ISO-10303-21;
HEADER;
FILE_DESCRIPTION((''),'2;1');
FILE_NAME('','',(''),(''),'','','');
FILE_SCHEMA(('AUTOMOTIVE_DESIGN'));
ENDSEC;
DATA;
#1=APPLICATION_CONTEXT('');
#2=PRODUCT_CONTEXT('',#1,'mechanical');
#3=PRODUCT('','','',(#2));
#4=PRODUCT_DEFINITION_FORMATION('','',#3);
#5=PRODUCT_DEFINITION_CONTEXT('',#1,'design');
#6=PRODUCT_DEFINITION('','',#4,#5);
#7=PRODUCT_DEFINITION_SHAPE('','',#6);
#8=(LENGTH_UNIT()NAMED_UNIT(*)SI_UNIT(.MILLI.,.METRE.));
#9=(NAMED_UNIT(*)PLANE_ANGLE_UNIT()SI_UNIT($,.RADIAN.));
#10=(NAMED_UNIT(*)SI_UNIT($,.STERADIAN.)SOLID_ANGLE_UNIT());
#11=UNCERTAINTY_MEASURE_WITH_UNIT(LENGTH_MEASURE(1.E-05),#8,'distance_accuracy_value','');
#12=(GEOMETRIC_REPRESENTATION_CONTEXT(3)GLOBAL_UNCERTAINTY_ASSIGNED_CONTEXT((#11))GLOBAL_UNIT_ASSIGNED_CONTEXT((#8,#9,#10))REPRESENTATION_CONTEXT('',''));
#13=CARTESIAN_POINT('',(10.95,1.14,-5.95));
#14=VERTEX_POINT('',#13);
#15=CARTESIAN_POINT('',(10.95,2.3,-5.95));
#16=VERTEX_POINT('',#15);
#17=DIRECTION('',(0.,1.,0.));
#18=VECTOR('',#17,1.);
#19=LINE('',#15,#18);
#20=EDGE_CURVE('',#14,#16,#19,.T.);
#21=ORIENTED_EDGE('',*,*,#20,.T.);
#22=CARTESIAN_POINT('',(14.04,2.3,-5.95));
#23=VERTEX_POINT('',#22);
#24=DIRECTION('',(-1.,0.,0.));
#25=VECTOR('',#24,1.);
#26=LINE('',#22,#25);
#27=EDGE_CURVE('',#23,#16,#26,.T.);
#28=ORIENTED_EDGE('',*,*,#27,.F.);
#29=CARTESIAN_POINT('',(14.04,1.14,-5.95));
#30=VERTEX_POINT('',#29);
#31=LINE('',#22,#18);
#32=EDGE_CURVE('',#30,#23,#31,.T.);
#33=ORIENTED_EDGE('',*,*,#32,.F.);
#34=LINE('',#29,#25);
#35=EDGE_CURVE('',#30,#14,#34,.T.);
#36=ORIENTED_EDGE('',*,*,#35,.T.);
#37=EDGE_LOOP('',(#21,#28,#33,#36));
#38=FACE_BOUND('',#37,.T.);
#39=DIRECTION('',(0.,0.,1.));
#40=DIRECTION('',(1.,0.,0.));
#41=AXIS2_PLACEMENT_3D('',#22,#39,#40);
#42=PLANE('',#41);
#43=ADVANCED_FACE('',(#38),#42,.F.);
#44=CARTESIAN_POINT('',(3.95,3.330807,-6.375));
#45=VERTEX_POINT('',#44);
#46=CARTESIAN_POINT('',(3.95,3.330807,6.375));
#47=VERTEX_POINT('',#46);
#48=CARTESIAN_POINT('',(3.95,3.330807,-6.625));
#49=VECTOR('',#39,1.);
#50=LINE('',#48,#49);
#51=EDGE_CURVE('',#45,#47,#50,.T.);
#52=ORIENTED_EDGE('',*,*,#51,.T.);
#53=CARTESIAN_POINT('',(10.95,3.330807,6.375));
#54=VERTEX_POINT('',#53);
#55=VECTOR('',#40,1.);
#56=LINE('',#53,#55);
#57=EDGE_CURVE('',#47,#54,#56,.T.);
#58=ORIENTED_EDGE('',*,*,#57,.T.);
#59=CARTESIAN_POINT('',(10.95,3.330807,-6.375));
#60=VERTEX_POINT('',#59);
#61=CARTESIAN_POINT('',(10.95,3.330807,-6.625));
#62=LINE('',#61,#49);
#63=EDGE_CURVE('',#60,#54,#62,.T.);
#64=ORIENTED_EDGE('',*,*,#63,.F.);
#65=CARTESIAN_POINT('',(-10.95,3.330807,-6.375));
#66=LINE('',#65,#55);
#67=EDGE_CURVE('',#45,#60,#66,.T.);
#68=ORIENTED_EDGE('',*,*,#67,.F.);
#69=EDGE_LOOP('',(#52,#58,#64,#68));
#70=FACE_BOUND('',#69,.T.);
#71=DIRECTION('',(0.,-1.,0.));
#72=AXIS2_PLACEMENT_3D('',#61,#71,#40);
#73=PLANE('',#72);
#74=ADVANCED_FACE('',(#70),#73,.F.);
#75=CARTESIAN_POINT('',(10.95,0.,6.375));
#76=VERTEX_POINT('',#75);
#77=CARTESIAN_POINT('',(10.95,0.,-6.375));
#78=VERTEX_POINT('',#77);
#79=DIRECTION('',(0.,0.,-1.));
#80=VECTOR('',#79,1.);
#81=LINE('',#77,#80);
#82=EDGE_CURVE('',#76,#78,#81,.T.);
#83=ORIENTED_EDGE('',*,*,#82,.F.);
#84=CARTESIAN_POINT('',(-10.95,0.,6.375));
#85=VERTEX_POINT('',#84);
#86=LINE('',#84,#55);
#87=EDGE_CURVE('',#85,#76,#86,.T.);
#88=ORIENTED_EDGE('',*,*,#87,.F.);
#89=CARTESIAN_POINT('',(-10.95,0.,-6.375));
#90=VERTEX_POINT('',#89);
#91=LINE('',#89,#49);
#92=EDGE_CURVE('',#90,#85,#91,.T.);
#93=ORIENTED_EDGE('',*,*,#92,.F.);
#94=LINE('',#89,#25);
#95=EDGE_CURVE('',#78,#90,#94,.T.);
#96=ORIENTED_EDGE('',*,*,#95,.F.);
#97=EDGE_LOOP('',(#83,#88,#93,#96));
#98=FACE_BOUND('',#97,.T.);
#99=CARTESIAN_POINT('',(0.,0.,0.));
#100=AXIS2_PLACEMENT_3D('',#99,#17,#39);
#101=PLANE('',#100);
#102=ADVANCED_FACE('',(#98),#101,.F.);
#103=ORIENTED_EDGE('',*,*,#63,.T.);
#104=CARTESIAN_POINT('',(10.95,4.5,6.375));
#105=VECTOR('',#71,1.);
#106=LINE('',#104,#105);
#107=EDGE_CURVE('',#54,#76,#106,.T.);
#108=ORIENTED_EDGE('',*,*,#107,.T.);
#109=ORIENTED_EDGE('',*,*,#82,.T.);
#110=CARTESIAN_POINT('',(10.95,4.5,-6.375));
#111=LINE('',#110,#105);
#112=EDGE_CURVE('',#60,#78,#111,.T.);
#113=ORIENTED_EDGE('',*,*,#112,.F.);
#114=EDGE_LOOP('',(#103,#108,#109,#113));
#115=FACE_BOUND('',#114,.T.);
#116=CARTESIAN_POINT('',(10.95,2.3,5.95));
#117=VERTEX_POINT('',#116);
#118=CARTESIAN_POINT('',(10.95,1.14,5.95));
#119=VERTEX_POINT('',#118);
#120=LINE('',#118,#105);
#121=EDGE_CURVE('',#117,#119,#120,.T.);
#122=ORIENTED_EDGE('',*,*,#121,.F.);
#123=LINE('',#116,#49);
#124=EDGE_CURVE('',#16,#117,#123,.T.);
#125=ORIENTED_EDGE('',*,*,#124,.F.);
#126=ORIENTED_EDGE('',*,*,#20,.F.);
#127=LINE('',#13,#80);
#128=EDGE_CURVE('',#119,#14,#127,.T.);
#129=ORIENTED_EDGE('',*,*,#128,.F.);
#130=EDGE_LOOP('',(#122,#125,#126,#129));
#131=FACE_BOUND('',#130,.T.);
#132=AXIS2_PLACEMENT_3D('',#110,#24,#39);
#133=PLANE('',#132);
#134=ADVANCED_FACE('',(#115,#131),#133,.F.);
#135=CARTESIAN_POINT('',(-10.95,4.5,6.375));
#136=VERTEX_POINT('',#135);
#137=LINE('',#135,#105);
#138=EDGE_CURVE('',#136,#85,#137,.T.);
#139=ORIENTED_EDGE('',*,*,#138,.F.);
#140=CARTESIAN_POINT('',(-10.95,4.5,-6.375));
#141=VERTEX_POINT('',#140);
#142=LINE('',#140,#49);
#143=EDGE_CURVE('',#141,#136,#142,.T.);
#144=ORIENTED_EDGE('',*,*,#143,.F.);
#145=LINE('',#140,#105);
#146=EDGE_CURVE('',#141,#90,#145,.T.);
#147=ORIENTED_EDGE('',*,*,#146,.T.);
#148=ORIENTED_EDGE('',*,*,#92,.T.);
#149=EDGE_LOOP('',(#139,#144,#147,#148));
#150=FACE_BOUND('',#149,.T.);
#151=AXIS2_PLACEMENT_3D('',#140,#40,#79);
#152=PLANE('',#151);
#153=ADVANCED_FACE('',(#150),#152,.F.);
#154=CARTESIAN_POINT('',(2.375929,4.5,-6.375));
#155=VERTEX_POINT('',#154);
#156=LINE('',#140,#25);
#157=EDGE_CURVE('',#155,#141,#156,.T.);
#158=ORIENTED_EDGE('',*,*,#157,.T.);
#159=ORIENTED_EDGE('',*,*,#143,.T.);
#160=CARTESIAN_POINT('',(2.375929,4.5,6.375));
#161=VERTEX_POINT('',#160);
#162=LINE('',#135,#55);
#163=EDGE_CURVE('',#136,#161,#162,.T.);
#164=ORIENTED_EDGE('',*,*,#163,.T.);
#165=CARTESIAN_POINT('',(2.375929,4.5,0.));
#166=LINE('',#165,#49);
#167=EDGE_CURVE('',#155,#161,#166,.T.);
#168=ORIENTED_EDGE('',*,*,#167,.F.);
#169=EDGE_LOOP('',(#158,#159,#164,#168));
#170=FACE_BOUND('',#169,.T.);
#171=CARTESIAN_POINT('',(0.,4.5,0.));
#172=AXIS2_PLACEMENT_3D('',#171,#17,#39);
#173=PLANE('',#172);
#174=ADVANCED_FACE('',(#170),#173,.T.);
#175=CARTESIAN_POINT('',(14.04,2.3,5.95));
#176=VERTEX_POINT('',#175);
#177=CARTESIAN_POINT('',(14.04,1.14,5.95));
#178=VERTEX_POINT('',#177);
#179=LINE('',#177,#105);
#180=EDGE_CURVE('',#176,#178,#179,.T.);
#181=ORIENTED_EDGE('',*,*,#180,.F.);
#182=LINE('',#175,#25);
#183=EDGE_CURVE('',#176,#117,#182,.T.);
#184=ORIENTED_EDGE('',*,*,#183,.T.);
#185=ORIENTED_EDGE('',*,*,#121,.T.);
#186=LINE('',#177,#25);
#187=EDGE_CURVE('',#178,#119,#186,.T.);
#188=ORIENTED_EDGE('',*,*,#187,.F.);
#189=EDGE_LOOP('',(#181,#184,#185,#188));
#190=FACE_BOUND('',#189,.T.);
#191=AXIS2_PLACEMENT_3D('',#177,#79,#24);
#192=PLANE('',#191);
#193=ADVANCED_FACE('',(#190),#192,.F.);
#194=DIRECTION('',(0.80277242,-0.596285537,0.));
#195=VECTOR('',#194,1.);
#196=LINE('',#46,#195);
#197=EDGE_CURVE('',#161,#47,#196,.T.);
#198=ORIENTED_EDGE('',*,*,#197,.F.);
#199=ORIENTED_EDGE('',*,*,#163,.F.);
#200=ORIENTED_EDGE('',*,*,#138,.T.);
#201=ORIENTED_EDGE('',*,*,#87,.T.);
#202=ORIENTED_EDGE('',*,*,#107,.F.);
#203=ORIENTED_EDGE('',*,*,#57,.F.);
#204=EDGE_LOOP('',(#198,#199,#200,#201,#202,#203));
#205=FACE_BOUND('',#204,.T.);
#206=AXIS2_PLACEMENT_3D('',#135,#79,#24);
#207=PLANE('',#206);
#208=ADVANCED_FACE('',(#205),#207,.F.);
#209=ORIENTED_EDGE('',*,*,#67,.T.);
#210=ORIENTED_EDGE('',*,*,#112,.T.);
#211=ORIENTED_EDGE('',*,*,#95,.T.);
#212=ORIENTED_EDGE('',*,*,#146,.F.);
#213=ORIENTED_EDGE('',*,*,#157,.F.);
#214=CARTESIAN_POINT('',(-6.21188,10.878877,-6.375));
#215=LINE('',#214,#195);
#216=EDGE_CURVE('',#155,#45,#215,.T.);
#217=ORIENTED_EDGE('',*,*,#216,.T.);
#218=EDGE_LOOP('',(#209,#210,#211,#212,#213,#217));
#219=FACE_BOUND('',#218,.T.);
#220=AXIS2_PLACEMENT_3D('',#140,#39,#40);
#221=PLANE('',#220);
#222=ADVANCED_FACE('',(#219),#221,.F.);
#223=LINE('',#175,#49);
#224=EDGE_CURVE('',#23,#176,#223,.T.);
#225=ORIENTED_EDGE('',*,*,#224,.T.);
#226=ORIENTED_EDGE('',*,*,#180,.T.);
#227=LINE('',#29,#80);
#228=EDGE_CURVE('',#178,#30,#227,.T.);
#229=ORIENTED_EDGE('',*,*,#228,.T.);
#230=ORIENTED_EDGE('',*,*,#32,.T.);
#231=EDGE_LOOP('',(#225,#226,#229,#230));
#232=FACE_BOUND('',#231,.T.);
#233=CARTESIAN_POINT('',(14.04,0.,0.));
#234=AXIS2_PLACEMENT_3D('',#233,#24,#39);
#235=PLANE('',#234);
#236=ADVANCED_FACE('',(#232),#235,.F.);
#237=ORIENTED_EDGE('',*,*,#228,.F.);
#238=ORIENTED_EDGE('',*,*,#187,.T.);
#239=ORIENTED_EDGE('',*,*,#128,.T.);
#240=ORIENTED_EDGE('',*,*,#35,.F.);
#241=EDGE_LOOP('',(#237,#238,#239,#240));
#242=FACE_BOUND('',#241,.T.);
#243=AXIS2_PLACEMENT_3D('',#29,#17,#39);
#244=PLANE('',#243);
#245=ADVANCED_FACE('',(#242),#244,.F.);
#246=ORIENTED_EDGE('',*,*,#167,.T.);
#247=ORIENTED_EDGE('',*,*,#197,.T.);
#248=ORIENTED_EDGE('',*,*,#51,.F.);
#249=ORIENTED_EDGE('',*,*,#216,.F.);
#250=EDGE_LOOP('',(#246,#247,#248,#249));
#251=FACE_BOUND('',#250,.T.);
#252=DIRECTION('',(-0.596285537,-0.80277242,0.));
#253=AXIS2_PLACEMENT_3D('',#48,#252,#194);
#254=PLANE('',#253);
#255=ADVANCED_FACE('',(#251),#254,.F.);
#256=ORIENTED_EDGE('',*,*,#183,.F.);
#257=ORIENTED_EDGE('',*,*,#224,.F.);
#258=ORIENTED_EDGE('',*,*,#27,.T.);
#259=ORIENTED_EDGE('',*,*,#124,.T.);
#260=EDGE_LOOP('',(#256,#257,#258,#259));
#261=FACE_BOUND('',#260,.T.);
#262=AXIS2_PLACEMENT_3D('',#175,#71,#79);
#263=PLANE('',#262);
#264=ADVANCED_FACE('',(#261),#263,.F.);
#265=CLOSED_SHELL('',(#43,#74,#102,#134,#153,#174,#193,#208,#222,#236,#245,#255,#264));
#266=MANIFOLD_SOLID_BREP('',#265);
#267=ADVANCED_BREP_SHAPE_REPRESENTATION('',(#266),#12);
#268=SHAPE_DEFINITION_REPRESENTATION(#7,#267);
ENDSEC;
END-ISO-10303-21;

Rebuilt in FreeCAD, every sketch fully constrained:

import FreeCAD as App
import Part
import Sketcher
from FreeCAD import Vector
Q = App.Units.Quantity

doc = App.newDocument("Part")
body = doc.addObject("PartDesign::Body", "Body")

# Sketch on XZ plane
sketch1 = body.newObject("Sketcher::SketchObject", "Sketch")
sketch1.AttachmentSupport = (doc.getObject("XZ_Plane"), [""])
sketch1.MapMode = "FlatFace"
sketch1.addGeometry([
    Part.LineSegment(Vector(-10.95, -6.375, 0), Vector(-10.95, 6.375, 0)),
    Part.LineSegment(Vector(-10.95, 6.375, 0), Vector(10.95, 6.375, 0)),
    Part.LineSegment(Vector(10.95, 6.375, 0), Vector(10.95, -6.375, 0)),
    Part.LineSegment(Vector(10.95, -6.375, 0), Vector(-10.95, -6.375, 0)),
], False)
sketch1.addConstraint([
    Sketcher.Constraint("Coincident", 0, 2, 1, 1),
    Sketcher.Constraint("Coincident", 1, 2, 2, 1),
    Sketcher.Constraint("Coincident", 2, 2, 3, 1),
    Sketcher.Constraint("Coincident", 3, 2, 0, 1),
    Sketcher.Constraint("Vertical", 0),
    Sketcher.Constraint("Horizontal", 1),
    Sketcher.Constraint("Vertical", 2),
    Sketcher.Constraint("Horizontal", 3),
    Sketcher.Constraint("Symmetric", 0, 2, 2, 2, -1, 1),
    Sketcher.Constraint("DistanceX", 1, 1, 1, 2, Q("21.9 mm")),
    Sketcher.Constraint("DistanceY", 0, 1, 0, 2, Q("12.75 mm")),
])
pad1 = body.newObject("PartDesign::Pad", "Pad")
pad1.Profile = sketch1
pad1.Length = 4.5
pad1.Reversed = True

# Sketch on YZ plane
sketch2 = body.newObject("Sketcher::SketchObject", "Sketch001")
sketch2.AttachmentSupport = (doc.getObject("YZ_Plane"), [""])
sketch2.MapMode = "FlatFace"
sketch2.AttachmentOffset = App.Placement(Vector(0, 0, 10.95), App.Rotation())
sketch2.addGeometry([
    Part.LineSegment(Vector(2.3, 5.95, 0), Vector(1.14, 5.95, 0)),
    Part.LineSegment(Vector(1.14, 5.95, 0), Vector(1.14, -5.95, 0)),
    Part.LineSegment(Vector(1.14, -5.95, 0), Vector(2.3, -5.95, 0)),
    Part.LineSegment(Vector(2.3, -5.95, 0), Vector(2.3, 5.95, 0)),
], False)
sketch2.addConstraint([
    Sketcher.Constraint("Coincident", 0, 2, 1, 1),
    Sketcher.Constraint("Coincident", 1, 2, 2, 1),
    Sketcher.Constraint("Coincident", 2, 2, 3, 1),
    Sketcher.Constraint("Coincident", 3, 2, 0, 1),
    Sketcher.Constraint("Horizontal", 0),
    Sketcher.Constraint("Vertical", 1),
    Sketcher.Constraint("Horizontal", 2),
    Sketcher.Constraint("Vertical", 3),
    Sketcher.Constraint("DistanceY", 1, 2, 1, 1, Q("11.9 mm")),
    Sketcher.Constraint("DistanceX", 0, 2, 0, 1, Q("1.16 mm")),
    Sketcher.Constraint("DistanceX", -1, 1, 2, 2, Q("2.3 mm")),
    Sketcher.Constraint("DistanceY", -1, 1, 0, 2, Q("5.95 mm")),
])
pad2 = body.newObject("PartDesign::Pad", "Pad001")
pad2.Profile = sketch2
pad2.Length = 3.09

# Sketch on XY plane
sketch3 = body.newObject("Sketcher::SketchObject", "Sketch002")
sketch3.AttachmentSupport = (doc.getObject("XY_Plane"), [""])
sketch3.MapMode = "FlatFace"
sketch3.AttachmentOffset = App.Placement(Vector(0, 0, 6.375), App.Rotation())
sketch3.addGeometry([
    Part.LineSegment(Vector(3.95, 3.330807, 0), Vector(10.95, 3.330807, 0)),
    Part.LineSegment(Vector(10.95, 3.330807, 0), Vector(10.95, 4.5, 0)),
    Part.LineSegment(Vector(10.95, 4.5, 0), Vector(2.375929, 4.5, 0)),
    Part.LineSegment(Vector(2.375929, 4.5, 0), Vector(3.95, 3.330807, 0)),
], False)
sketch3.addConstraint([
    Sketcher.Constraint("Coincident", 0, 2, 1, 1),
    Sketcher.Constraint("Coincident", 1, 2, 2, 1),
    Sketcher.Constraint("Coincident", 2, 2, 3, 1),
    Sketcher.Constraint("Coincident", 3, 2, 0, 1),
    Sketcher.Constraint("Horizontal", 0),
    Sketcher.Constraint("Vertical", 1),
    Sketcher.Constraint("Horizontal", 2),
    Sketcher.Constraint("DistanceX", 0, 1, 0, 2, Q("7 mm")),
    Sketcher.Constraint("DistanceY", -1, 1, 1, 2, Q("4.5 mm")),
    Sketcher.Constraint("DistanceX", -1, 1, 0, 2, Q("10.95 mm")),
    Sketcher.Constraint("DistanceX", 2, 2, 2, 1, Q("8.574071 mm")),
    Sketcher.Constraint("DistanceY", 1, 1, 1, 2, Q("1.169193 mm")),
])
pocket1 = body.newObject("PartDesign::Pocket", "Pocket")
pocket1.Profile = sketch3
pocket1.Length = 13

doc.recompute()
